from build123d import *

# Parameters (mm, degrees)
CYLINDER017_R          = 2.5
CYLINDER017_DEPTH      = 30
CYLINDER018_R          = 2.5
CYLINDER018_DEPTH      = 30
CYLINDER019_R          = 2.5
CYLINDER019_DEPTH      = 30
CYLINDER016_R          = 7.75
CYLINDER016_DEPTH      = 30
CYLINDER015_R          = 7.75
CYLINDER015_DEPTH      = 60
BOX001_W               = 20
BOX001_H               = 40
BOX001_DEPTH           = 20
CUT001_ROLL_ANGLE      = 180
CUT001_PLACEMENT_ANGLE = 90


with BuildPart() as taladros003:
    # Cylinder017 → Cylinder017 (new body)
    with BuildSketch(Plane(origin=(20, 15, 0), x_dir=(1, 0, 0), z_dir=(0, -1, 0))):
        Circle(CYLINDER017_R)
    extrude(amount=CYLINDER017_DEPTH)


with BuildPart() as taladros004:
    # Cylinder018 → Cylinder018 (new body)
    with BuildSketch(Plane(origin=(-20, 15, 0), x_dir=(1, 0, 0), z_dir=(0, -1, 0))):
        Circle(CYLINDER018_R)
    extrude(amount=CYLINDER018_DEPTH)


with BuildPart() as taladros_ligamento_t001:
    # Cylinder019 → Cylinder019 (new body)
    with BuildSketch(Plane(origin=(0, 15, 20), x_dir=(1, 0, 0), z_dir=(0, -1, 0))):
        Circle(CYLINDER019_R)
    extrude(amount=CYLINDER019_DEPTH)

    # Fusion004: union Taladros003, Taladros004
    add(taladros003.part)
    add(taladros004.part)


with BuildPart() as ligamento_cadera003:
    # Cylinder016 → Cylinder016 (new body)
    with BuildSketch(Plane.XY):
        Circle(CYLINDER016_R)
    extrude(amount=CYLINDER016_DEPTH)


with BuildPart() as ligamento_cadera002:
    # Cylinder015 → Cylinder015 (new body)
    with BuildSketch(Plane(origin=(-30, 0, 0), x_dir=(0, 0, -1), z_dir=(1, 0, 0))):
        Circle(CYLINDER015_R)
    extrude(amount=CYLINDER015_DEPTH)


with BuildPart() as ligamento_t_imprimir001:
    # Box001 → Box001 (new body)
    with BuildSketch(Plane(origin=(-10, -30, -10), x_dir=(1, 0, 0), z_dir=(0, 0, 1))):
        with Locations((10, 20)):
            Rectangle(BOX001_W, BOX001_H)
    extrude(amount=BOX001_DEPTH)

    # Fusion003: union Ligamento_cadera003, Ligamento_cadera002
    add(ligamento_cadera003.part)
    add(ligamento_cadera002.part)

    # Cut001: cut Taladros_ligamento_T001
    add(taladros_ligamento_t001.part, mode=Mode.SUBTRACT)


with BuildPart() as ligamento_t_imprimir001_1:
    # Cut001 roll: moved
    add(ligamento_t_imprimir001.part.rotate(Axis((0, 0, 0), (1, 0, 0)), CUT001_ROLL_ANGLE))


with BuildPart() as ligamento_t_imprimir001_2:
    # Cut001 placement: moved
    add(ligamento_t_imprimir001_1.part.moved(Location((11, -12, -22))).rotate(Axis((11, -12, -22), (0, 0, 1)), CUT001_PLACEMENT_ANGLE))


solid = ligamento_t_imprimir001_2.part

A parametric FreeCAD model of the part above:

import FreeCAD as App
import Part
import Sketcher

V = App.Vector

doc = App.newDocument("Part")
body = doc.addObject("PartDesign::Body", "Body")

# Sketch on XZ plane
sketch1 = body.newObject("Sketcher::SketchObject", "Sketch")
sketch1.AttachmentSupport = (doc.getObject("XZ_Plane"), [""])
sketch1.MapMode = "FlatFace"
sketch1.AttachmentOffset = App.Placement(V(0, 0, -15), App.Rotation())
sketch1.addGeometry(Part.Circle(V(20, 0, 0), V(0, 0, 1), 2.5), False)
sketch1.addConstraint(Sketcher.Constraint("PointOnObject", 0, 3, -1))
sketch1.addConstraint(Sketcher.Constraint("Diameter", 0, 5.0))
sketch1.addConstraint(Sketcher.Constraint("DistanceX", -1, 1, 0, 3, 20.0))
pad1 = body.newObject("PartDesign::Pad", "Pad")
pad1.Profile = sketch1
pad1.Length = 30
body2 = doc.addObject("PartDesign::Body", "Body001")

# Sketch on XZ plane
sketch2 = body2.newObject("Sketcher::SketchObject", "Sketch001")
sketch2.AttachmentSupport = (doc.getObject("XZ_Plane001"), [""])
sketch2.MapMode = "FlatFace"
sketch2.AttachmentOffset = App.Placement(V(0, 0, -15), App.Rotation())
sketch2.addGeometry(Part.Circle(V(-20, 0, 0), V(0, 0, 1), 2.5), False)
sketch2.addConstraint(Sketcher.Constraint("PointOnObject", 0, 3, -1))
sketch2.addConstraint(Sketcher.Constraint("Diameter", 0, 5.0))
sketch2.addConstraint(Sketcher.Constraint("DistanceX", 0, 3, -1, 1, 20.0))
pad2 = body2.newObject("PartDesign::Pad", "Pad001")
pad2.Profile = sketch2
pad2.Length = 30
body3 = doc.addObject("PartDesign::Body", "Body002")
body3.AllowCompound = True

# Sketch on XZ plane
sketch3 = body3.newObject("Sketcher::SketchObject", "Sketch002")
sketch3.AttachmentSupport = (doc.getObject("XZ_Plane002"), [""])
sketch3.MapMode = "FlatFace"
sketch3.AttachmentOffset = App.Placement(V(0, 0, -15), App.Rotation())
sketch3.addGeometry(Part.Circle(V(0, 20, 0), V(0, 0, 1), 2.5), False)
sketch3.addConstraint(Sketcher.Constraint("PointOnObject", 0, 3, -2))
sketch3.addConstraint(Sketcher.Constraint("Diameter", 0, 5.0))
sketch3.addConstraint(Sketcher.Constraint("DistanceY", -1, 1, 0, 3, 20.0))
pad3 = body3.newObject("PartDesign::Pad", "Pad002")
pad3.Profile = sketch3
pad3.Length = 30
doc.recompute()

boolean = body3.newObject("PartDesign::Boolean", "Boolean")
boolean.Type = "Fuse"
boolean.addObjects([body])
doc.recompute()

boolean2 = body3.newObject("PartDesign::Boolean", "Boolean001")
boolean2.Type = "Fuse"
boolean2.addObjects([body2])
body4 = doc.addObject("PartDesign::Body", "Body003")

# Sketch on XY plane
sketch4 = body4.newObject("Sketcher::SketchObject", "Sketch003")
sketch4.AttachmentSupport = (doc.getObject("XY_Plane003"), [""])
sketch4.MapMode = "FlatFace"
sketch4.addGeometry(Part.Circle(V(0, 0, 0), V(0, 0, 1), 8), False)
sketch4.addConstraint(Sketcher.Constraint("Coincident", 0, 3, -1, 1))
sketch4.addConstraint(Sketcher.Constraint("Diameter", 0, 15.5))
pad4 = body4.newObject("PartDesign::Pad", "Pad003")
pad4.Profile = sketch4
pad4.Length = 30
body5 = doc.addObject("PartDesign::Body", "Body004")

# Sketch on YZ plane
sketch5 = body5.newObject("Sketcher::SketchObject", "Sketch004")
sketch5.AttachmentSupport = (doc.getObject("YZ_Plane004"), [""])
sketch5.MapMode = "FlatFace"
sketch5.AttachmentOffset = App.Placement(V(0, 0, -30), App.Rotation())
sketch5.addGeometry(Part.Circle(V(0, 0, 0), V(0, 0, 1), 8), False)
sketch5.addConstraint(Sketcher.Constraint("Coincident", 0, 3, -1, 1))
sketch5.addConstraint(Sketcher.Constraint("Diameter", 0, 15.5))
pad5 = body5.newObject("PartDesign::Pad", "Pad004")
pad5.Profile = sketch5
pad5.Length = 60
body6 = doc.addObject("PartDesign::Body", "Body005")

# Sketch on XY plane
sketch6 = body6.newObject("Sketcher::SketchObject", "Sketch005")
sketch6.AttachmentSupport = (doc.getObject("XY_Plane005"), [""])
sketch6.MapMode = "FlatFace"
sketch6.AttachmentOffset = App.Placement(V(0, 0, -10), App.Rotation())
sketch6.addGeometry(Part.LineSegment(V(-10, 10, 0), V(-10, -30, 0)), False)
sketch6.addGeometry(Part.LineSegment(V(-10, -30, 0), V(10, -30, 0)), False)
sketch6.addGeometry(Part.LineSegment(V(10, -30, 0), V(10, 10, 0)), False)
sketch6.addGeometry(Part.LineSegment(V(10, 10, 0), V(-10, 10, 0)), False)
sketch6.addConstraint(Sketcher.Constraint("Coincident", 0, 2, 1, 1))
sketch6.addConstraint(Sketcher.Constraint("Coincident", 1, 2, 2, 1))
sketch6.addConstraint(Sketcher.Constraint("Coincident", 2, 2, 3, 1))
sketch6.addConstraint(Sketcher.Constraint("Coincident", 3, 2, 0, 1))
sketch6.addConstraint(Sketcher.Constraint("Vertical", 0))
sketch6.addConstraint(Sketcher.Constraint("Horizontal", 1))
sketch6.addConstraint(Sketcher.Constraint("Vertical", 2))
sketch6.addConstraint(Sketcher.Constraint("Horizontal", 3))
sketch6.addConstraint(Sketcher.Constraint("DistanceX", 1, 1, 1, 2, 20.0))
sketch6.addConstraint(Sketcher.Constraint("DistanceY", 0, 2, 0, 1, 40.0))
sketch6.addConstraint(Sketcher.Constraint("DistanceX", 0, 2, -1, 1, 10.0))
sketch6.addConstraint(Sketcher.Constraint("DistanceY", 0, 2, -1, 1, 30.0))
pad6 = body6.newObject("PartDesign::Pad", "Pad005")
pad6.Profile = sketch6
pad6.Length = 20
doc.recompute()

boolean3 = body6.newObject("PartDesign::Boolean", "Boolean002")
boolean3.Type = "Fuse"
boolean3.addObjects([body4])
doc.recompute()

boolean4 = body6.newObject("PartDesign::Boolean", "Boolean003")
boolean4.Type = "Fuse"
boolean4.addObjects([body5])
doc.recompute()

boolean5 = body6.newObject("PartDesign::Boolean", "Boolean004")
boolean5.Type = "Cut"
boolean5.addObjects([body3])
body7 = doc.addObject("PartDesign::Body", "Body006")
doc.recompute()

body6.Placement = App.Placement(V(0, 0, 0), App.Rotation(V(1, 0, 0), 180))
boolean6 = body7.newObject("PartDesign::Boolean", "Boolean005")
boolean6.Type = "Fuse"
boolean6.addObjects([body6])
body8 = doc.addObject("PartDesign::Body", "Body007")
doc.recompute()

body7.Placement = App.Placement(V(11, -12, -22), App.Rotation(V(0, 0, 1), 90))
boolean7 = body8.newObject("PartDesign::Boolean", "Boolean006")
boolean7.Type = "Fuse"
boolean7.addObjects([body7])

doc.recompute()
